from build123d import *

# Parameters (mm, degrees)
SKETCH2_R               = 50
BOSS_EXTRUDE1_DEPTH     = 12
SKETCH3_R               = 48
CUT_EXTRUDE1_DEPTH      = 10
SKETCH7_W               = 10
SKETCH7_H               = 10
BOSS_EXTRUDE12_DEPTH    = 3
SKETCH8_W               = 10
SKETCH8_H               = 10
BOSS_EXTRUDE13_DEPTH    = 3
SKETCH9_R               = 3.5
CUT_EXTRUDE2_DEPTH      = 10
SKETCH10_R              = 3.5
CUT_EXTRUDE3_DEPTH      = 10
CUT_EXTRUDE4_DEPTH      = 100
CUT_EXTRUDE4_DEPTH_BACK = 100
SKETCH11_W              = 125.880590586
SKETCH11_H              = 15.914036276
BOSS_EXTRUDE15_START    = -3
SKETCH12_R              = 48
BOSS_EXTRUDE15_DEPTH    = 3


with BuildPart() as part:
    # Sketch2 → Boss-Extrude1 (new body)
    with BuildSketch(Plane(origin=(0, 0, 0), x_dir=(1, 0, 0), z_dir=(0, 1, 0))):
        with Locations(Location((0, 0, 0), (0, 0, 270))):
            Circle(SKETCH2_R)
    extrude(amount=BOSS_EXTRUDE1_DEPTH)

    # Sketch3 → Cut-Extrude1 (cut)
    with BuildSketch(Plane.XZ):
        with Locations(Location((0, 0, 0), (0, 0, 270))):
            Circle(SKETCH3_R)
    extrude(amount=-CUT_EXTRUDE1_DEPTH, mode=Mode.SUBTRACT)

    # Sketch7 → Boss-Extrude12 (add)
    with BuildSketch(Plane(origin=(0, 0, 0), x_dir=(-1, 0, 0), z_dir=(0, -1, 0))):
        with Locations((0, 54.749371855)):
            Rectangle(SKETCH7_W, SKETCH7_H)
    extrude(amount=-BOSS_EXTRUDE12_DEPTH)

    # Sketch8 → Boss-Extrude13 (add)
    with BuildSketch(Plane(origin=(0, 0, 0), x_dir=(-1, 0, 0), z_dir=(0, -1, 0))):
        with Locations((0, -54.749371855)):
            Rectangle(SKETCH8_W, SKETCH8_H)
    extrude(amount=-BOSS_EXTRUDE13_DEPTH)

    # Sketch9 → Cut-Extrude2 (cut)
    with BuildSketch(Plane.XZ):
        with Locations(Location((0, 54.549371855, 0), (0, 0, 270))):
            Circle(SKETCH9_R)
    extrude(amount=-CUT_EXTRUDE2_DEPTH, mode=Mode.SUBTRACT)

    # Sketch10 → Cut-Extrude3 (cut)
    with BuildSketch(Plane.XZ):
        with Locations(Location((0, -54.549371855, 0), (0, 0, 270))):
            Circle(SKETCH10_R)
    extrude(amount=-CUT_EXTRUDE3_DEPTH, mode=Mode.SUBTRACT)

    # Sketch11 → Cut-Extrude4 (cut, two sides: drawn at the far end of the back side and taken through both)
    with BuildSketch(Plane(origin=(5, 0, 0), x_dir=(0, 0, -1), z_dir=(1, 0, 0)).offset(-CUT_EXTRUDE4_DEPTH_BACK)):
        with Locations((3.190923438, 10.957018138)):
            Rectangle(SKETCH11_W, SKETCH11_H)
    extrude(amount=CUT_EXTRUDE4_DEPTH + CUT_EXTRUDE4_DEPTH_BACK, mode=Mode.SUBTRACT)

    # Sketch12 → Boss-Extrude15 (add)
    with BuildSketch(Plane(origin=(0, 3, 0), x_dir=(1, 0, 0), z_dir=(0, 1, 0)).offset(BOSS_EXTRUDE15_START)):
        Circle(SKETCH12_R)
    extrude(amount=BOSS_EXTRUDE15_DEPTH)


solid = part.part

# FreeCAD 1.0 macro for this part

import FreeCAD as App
import Part
import Sketcher

doc = App.newDocument("Part")
body = doc.addObject("PartDesign::Body", "Body")

# Sketch on XZ plane
sketch1 = body.newObject("Sketcher::SketchObject", "Sketch")
sketch1.AttachmentSupport = (doc.getObject("XZ_Plane"), [""])
sketch1.MapMode = "FlatFace"
sketch1.addGeometry(Part.Circle(App.Vector(0, 0, 0), App.Vector(0, 0, 1), 50), False)
sketch1.addConstraint(Sketcher.Constraint("Coincident", 0, 3, -1, 1))
sketch1.addConstraint(Sketcher.Constraint("Diameter", 0, 100.0))
pad1 = body.newObject("PartDesign::Pad", "Pad")
pad1.Profile = sketch1
pad1.Length = 12
pad1.Reversed = True

# Sketch on XZ plane
sketch2 = body.newObject("Sketcher::SketchObject", "Sketch001")
sketch2.AttachmentSupport = (doc.getObject("XZ_Plane"), [""])
sketch2.MapMode = "FlatFace"
sketch2.addGeometry(Part.Circle(App.Vector(0, 0, 0), App.Vector(0, 0, 1), 48), False)
sketch2.addConstraint(Sketcher.Constraint("Coincident", 0, 3, -1, 1))
sketch2.addConstraint(Sketcher.Constraint("Diameter", 0, 96.0))
pocket1 = body.newObject("PartDesign::Pocket", "Pocket")
pocket1.Profile = sketch2
pocket1.Length = 10

# Sketch on XZ plane
sketch3 = body.newObject("Sketcher::SketchObject", "Sketch002")
sketch3.AttachmentSupport = (doc.getObject("XZ_Plane"), [""])
sketch3.MapMode = "FlatFace"
sketch3.addGeometry(Part.LineSegment(App.Vector(5, -59.749372, 0), App.Vector(5, -49.749372, 0)), False)
sketch3.addGeometry(Part.LineSegment(App.Vector(5, -49.749372, 0), App.Vector(-5, -49.749372, 0)), False)
sketch3.addGeometry(Part.LineSegment(App.Vector(-5, -49.749372, 0), App.Vector(-5, -59.749372, 0)), False)
sketch3.addGeometry(Part.LineSegment(App.Vector(-5, -59.749372, 0), App.Vector(5, -59.749372, 0)), False)
sketch3.addConstraint(Sketcher.Constraint("Coincident", 0, 2, 1, 1))
sketch3.addConstraint(Sketcher.Constraint("Coincident", 1, 2, 2, 1))
sketch3.addConstraint(Sketcher.Constraint("Coincident", 2, 2, 3, 1))
sketch3.addConstraint(Sketcher.Constraint("Coincident", 3, 2, 0, 1))
sketch3.addConstraint(Sketcher.Constraint("Vertical", 0))
sketch3.addConstraint(Sketcher.Constraint("Horizontal", 1))
sketch3.addConstraint(Sketcher.Constraint("Vertical", 2))
sketch3.addConstraint(Sketcher.Constraint("Horizontal", 3))
sketch3.addConstraint(Sketcher.Constraint("Equal", 3, 0))
sketch3.addConstraint(Sketcher.Constraint("DistanceX", 1, 2, 1, 1, 10.0))
sketch3.addConstraint(Sketcher.Constraint("DistanceX", -1, 1, 0, 2, 5.0))
sketch3.addConstraint(Sketcher.Constraint("DistanceY", 0, 2, -1, 1, 49.749372))
pad2 = body.newObject("PartDesign::Pad", "Pad001")
pad2.Profile = sketch3
pad2.Length = 3
pad2.Reversed = True

# Sketch on XZ plane
sketch4 = body.newObject("Sketcher::SketchObject", "Sketch003")
sketch4.AttachmentSupport = (doc.getObject("XZ_Plane"), [""])
sketch4.MapMode = "FlatFace"
sketch4.addGeometry(Part.LineSegment(App.Vector(5, 49.749372, 0), App.Vector(5, 59.749372, 0)), False)
sketch4.addGeometry(Part.LineSegment(App.Vector(5, 59.749372, 0), App.Vector(-5, 59.749372, 0)), False)
sketch4.addGeometry(Part.LineSegment(App.Vector(-5, 59.749372, 0), App.Vector(-5, 49.749372, 0)), False)
sketch4.addGeometry(Part.LineSegment(App.Vector(-5, 49.749372, 0), App.Vector(5, 49.749372, 0)), False)
sketch4.addConstraint(Sketcher.Constraint("Coincident", 0, 2, 1, 1))
sketch4.addConstraint(Sketcher.Constraint("Coincident", 1, 2, 2, 1))
sketch4.addConstraint(Sketcher.Constraint("Coincident", 2, 2, 3, 1))
sketch4.addConstraint(Sketcher.Constraint("Coincident", 3, 2, 0, 1))
sketch4.addConstraint(Sketcher.Constraint("Vertical", 0))
sketch4.addConstraint(Sketcher.Constraint("Horizontal", 1))
sketch4.addConstraint(Sketcher.Constraint("Vertical", 2))
sketch4.addConstraint(Sketcher.Constraint("Horizontal", 3))
sketch4.addConstraint(Sketcher.Constraint("Equal", 3, 0))
sketch4.addConstraint(Sketcher.Constraint("DistanceX", 1, 2, 1, 1, 10.0))
sketch4.addConstraint(Sketcher.Constraint("DistanceX", -1, 1, 0, 2, 5.0))
sketch4.addConstraint(Sketcher.Constraint("DistanceY", -1, 1, 0, 2, 59.749372))
pad3 = body.newObject("PartDesign::Pad", "Pad002")
pad3.Profile = sketch4
pad3.Length = 3
pad3.Reversed = True

# Sketch on XZ plane
sketch5 = body.newObject("Sketcher::SketchObject", "Sketch004")
sketch5.AttachmentSupport = (doc.getObject("XZ_Plane"), [""])
sketch5.MapMode = "FlatFace"
sketch5.addGeometry(Part.Circle(App.Vector(0, 54.549372, 0), App.Vector(0, 0, 1), 3.5), False)
sketch5.addConstraint(Sketcher.Constraint("PointOnObject", 0, 3, -2))
sketch5.addConstraint(Sketcher.Constraint("Diameter", 0, 7.0))
sketch5.addConstraint(Sketcher.Constraint("DistanceY", -1, 1, 0, 3, 54.549372))
pocket2 = body.newObject("PartDesign::Pocket", "Pocket001")
pocket2.Profile = sketch5
pocket2.Length = 10

# Sketch on XZ plane
sketch6 = body.newObject("Sketcher::SketchObject", "Sketch005")
sketch6.AttachmentSupport = (doc.getObject("XZ_Plane"), [""])
sketch6.MapMode = "FlatFace"
sketch6.addGeometry(Part.Circle(App.Vector(0, -54.549372, 0), App.Vector(0, 0, 1), 3.5), False)
sketch6.addConstraint(Sketcher.Constraint("PointOnObject", 0, 3, -2))
sketch6.addConstraint(Sketcher.Constraint("Diameter", 0, 7.0))
sketch6.addConstraint(Sketcher.Constraint("DistanceY", 0, 3, -1, 1, 54.549372))
pocket3 = body.newObject("PartDesign::Pocket", "Pocket002")
pocket3.Profile = sketch6
pocket3.Length = 10

# Sketch on YZ plane
sketch7 = body.newObject("Sketcher::SketchObject", "Sketch006")
sketch7.AttachmentSupport = (doc.getObject("YZ_Plane"), [""])
sketch7.MapMode = "FlatFace"
sketch7.AttachmentOffset = App.Placement(App.Vector(0, 0, 5), App.Rotation())
sketch7.addGeometry(Part.LineSegment(App.Vector(18.914036, 59.749372, 0), App.Vector(3, 59.749372, 0)), False)
sketch7.addGeometry(Part.LineSegment(App.Vector(3, 59.749372, 0), App.Vector(3, -66.131219, 0)), False)
sketch7.addGeometry(Part.LineSegment(App.Vector(3, -66.131219, 0), App.Vector(18.914036, -66.131219, 0)), False)
sketch7.addGeometry(Part.LineSegment(App.Vector(18.914036, -66.131219, 0), App.Vector(18.914036, 59.749372, 0)), False)
sketch7.addConstraint(Sketcher.Constraint("Coincident", 0, 2, 1, 1))
sketch7.addConstraint(Sketcher.Constraint("Coincident", 1, 2, 2, 1))
sketch7.addConstraint(Sketcher.Constraint("Coincident", 2, 2, 3, 1))
sketch7.addConstraint(Sketcher.Constraint("Coincident", 3, 2, 0, 1))
sketch7.addConstraint(Sketcher.Constraint("Horizontal", 0))
sketch7.addConstraint(Sketcher.Constraint("Vertical", 1))
sketch7.addConstraint(Sketcher.Constraint("Horizontal", 2))
sketch7.addConstraint(Sketcher.Constraint("Vertical", 3))
sketch7.addConstraint(Sketcher.Constraint("DistanceX", -1, 1, 0, 2, 3.0))
sketch7.addConstraint(Sketcher.Constraint("DistanceY", 1, 2, 1, 1, 125.880591))
sketch7.addConstraint(Sketcher.Constraint("DistanceX", 0, 2, 0, 1, 15.914036))
sketch7.addConstraint(Sketcher.Constraint("DistanceY", -1, 1, 0, 2, 59.749372))
pocket4 = body.newObject("PartDesign::Pocket", "Pocket003")
pocket4.Profile = sketch7
pocket4.Type = "ThroughAll"
pocket4.Midplane = True

# Sketch on XZ plane
sketch8 = body.newObject("Sketcher::SketchObject", "Sketch007")
sketch8.AttachmentSupport = (doc.getObject("XZ_Plane"), [""])
sketch8.MapMode = "FlatFace"
sketch8.addGeometry(Part.Circle(App.Vector(0, 0, 0), App.Vector(0, 0, 1), 48), False)
sketch8.addConstraint(Sketcher.Constraint("Coincident", 0, 3, -1, 1))
sketch8.addConstraint(Sketcher.Constraint("Diameter", 0, 96.0))
pad4 = body.newObject("PartDesign::Pad", "Pad003")
pad4.Profile = sketch8
pad4.Length = 3
pad4.Reversed = True

doc.recompute()
